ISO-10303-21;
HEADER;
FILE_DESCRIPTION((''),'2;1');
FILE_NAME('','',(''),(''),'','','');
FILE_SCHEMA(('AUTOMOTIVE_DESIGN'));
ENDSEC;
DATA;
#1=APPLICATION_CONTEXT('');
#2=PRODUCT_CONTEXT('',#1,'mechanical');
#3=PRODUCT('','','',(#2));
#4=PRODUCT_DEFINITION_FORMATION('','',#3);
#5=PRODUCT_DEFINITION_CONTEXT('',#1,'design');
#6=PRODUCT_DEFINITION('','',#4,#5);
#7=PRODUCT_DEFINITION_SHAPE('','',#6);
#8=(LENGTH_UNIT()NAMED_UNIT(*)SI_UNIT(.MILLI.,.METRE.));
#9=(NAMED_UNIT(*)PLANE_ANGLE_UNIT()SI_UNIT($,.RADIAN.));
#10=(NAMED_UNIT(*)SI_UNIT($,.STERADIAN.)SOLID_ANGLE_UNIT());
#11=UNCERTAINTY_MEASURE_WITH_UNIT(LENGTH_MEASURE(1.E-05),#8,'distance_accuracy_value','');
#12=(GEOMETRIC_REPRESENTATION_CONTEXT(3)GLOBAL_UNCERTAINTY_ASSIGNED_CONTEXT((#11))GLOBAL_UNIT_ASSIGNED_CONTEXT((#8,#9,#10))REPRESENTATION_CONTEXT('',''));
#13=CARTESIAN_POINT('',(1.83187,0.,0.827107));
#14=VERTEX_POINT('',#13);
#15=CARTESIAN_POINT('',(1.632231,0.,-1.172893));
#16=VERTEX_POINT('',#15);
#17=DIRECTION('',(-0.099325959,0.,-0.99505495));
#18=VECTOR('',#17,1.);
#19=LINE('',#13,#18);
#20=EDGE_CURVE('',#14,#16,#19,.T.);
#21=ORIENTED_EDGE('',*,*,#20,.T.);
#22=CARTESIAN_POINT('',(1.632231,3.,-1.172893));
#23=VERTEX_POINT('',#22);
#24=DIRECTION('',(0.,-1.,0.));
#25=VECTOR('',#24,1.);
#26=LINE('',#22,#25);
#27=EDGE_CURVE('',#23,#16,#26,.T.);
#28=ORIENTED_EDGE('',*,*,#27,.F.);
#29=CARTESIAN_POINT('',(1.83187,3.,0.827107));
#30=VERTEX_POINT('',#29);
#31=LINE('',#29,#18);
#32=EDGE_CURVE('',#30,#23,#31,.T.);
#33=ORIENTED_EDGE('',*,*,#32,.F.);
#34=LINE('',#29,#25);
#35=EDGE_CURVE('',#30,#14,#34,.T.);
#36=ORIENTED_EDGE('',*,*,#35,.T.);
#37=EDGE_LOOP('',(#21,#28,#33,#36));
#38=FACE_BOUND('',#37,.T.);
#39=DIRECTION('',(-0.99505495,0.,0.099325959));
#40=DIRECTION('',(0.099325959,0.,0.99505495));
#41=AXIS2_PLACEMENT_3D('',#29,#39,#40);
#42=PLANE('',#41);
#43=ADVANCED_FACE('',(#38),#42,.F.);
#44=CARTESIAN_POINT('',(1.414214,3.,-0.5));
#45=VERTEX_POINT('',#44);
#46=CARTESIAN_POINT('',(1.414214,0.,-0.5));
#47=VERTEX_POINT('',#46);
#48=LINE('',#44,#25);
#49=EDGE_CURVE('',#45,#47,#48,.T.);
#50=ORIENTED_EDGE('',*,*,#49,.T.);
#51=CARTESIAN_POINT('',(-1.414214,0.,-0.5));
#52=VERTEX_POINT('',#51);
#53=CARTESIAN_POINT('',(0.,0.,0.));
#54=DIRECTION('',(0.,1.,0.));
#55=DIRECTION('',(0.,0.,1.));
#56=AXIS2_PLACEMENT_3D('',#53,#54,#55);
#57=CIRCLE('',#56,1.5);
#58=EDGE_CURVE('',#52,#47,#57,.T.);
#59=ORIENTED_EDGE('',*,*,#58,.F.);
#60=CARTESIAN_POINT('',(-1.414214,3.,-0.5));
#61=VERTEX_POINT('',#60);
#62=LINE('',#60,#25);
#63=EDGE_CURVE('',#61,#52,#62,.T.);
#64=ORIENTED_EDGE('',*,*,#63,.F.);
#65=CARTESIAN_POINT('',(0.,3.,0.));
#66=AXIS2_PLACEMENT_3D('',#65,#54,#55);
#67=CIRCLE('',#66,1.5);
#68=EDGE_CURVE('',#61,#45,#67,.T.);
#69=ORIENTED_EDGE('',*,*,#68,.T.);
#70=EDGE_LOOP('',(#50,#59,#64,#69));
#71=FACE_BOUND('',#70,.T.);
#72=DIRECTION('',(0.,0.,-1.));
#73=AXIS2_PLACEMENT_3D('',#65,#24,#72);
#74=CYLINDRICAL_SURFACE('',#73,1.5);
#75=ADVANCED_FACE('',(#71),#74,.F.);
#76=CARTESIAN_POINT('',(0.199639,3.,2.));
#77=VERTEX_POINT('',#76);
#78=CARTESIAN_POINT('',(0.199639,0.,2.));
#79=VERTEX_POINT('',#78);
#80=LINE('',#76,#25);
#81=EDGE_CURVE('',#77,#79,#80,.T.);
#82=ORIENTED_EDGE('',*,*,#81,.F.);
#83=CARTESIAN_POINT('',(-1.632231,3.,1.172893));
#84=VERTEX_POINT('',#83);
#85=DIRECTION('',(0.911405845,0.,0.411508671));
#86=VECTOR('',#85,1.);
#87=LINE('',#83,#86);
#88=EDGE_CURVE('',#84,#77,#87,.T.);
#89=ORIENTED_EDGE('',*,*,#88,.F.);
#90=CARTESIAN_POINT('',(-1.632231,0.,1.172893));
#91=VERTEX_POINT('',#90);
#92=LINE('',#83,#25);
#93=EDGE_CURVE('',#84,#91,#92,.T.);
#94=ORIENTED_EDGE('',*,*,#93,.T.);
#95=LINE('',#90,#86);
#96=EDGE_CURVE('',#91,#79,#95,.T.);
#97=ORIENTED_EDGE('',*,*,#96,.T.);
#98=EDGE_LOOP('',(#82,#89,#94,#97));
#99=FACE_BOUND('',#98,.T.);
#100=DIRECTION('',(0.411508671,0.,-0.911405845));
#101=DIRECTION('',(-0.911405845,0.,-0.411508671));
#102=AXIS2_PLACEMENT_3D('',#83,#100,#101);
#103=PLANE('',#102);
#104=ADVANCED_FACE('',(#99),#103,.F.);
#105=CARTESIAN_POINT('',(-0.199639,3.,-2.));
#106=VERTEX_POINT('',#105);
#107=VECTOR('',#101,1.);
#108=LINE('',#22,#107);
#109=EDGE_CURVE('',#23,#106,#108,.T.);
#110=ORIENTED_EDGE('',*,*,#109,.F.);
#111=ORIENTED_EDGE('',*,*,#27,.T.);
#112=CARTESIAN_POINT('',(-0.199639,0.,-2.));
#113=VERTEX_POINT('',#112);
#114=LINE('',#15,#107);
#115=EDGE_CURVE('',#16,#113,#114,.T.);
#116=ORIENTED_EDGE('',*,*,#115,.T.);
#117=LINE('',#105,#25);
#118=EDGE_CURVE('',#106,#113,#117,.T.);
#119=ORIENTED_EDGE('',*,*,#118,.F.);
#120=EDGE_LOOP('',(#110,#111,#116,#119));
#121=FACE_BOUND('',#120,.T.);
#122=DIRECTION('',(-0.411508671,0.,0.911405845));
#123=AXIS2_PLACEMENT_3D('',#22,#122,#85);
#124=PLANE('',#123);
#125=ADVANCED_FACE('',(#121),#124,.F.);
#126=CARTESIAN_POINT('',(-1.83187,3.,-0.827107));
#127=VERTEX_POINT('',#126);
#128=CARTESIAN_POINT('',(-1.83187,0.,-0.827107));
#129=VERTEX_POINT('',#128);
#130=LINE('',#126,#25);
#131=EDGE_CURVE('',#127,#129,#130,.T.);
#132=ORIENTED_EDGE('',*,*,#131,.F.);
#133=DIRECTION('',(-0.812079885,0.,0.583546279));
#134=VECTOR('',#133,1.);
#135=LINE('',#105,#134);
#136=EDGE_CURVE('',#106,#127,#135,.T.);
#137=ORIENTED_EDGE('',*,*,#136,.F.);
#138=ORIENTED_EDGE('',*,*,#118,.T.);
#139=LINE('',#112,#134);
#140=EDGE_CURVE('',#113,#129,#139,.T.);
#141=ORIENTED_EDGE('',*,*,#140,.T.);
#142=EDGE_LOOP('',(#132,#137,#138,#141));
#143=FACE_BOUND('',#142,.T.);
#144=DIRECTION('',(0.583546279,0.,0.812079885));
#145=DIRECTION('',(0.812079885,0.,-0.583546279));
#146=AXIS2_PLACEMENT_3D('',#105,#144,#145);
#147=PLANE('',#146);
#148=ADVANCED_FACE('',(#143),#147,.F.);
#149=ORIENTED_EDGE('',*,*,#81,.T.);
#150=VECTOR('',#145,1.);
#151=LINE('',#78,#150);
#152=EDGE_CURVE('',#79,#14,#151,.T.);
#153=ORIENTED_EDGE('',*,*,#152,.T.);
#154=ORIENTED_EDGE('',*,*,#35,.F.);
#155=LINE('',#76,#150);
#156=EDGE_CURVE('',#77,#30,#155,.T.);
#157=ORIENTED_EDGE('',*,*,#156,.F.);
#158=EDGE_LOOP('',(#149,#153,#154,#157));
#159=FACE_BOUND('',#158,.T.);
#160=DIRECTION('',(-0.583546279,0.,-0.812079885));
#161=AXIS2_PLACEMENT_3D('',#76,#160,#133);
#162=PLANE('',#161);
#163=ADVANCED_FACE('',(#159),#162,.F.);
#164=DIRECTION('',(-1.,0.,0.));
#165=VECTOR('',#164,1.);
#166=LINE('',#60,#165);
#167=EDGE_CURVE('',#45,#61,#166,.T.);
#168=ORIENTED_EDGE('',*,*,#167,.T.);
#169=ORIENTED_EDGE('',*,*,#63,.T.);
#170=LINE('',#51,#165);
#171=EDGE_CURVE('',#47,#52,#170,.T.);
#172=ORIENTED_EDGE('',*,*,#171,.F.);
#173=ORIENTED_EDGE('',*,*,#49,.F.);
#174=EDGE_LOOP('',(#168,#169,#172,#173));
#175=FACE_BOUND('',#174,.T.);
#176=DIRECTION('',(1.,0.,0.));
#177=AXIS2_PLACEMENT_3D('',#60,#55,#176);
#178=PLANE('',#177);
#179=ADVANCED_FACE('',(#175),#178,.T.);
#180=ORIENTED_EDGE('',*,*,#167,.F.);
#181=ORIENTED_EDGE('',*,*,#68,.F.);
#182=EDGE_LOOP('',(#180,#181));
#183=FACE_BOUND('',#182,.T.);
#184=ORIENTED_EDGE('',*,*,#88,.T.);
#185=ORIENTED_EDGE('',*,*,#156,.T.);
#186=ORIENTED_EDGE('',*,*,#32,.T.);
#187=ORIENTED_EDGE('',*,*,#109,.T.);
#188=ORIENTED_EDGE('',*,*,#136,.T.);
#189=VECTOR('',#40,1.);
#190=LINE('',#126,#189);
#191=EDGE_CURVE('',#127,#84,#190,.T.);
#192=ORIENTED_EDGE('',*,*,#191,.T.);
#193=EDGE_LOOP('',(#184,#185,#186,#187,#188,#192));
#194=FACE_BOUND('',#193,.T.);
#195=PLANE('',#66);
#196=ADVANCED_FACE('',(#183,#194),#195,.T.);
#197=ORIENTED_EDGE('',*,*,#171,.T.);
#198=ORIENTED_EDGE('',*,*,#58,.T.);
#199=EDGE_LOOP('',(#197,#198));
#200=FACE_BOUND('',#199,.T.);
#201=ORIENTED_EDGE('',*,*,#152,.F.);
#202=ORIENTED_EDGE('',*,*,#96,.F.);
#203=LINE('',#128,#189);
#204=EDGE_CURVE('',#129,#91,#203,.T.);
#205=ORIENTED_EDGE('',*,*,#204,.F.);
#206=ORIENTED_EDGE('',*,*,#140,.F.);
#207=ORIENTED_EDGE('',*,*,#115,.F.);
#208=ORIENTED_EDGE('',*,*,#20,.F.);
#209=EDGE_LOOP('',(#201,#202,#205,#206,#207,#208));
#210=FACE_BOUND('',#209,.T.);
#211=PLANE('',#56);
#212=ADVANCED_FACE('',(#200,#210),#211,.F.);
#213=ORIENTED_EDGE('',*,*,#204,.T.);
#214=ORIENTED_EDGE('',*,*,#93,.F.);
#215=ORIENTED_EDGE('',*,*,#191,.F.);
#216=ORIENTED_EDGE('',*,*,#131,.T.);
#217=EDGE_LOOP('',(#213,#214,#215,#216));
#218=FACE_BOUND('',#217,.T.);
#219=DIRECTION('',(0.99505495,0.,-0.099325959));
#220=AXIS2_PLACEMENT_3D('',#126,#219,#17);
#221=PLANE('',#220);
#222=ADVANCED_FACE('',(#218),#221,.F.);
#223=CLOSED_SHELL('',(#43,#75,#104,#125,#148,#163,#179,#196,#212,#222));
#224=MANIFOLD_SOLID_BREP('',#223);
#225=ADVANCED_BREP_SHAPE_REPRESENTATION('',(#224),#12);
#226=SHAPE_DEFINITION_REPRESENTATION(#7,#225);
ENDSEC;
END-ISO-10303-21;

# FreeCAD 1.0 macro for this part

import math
import FreeCAD as App
import Part
import Sketcher

V = App.Vector

doc = App.newDocument("Part")
params = doc.addObject("Spreadsheet::Sheet", "Params")
for row, (alias, value) in enumerate([
    ("sketch1_radius", "1.5 mm"),
    ("pad1_length", "3 mm"),
], start=1):
    params.set(f"A{row}", alias)
    params.set(f"B{row}", "=" + value)
    params.setAlias(f"B{row}", alias)

body = doc.addObject("PartDesign::Body", "Body")

# Sketch on XZ plane
sketch1 = body.newObject("Sketcher::SketchObject", "Sketch")
sketch1.AttachmentSupport = (doc.getObject("XZ_Plane"), [""])
sketch1.MapMode = "FlatFace"
sketch1.addGeometry([
    Part.LineSegment(V(1.8, 0.8, 0), V(1.6, -1.2, 0)),  # 0
    Part.LineSegment(V(1.6, -1.2, 0), V(-0.2, -2, 0)),  # 1
    Part.LineSegment(V(-0.2, -2, 0), V(-1.8, -0.8, 0)),  # 2
    Part.LineSegment(V(-1.8, -0.8, 0), V(-1.6, 1.2, 0)),  # 3
    Part.LineSegment(V(-1.6, 1.2, 0), V(0.2, 2, 0)),  # 4
    Part.LineSegment(V(0.2, 2, 0), V(1.8, 0.8, 0)),  # 5
    Part.ArcOfCircle(Part.Circle(V(0, 0, 0), V(0, 0, 1), 1.5), math.radians(-19), math.radians(199)),  # 6
    Part.LineSegment(V(-1.4, -0.5, 0), V(1.4, -0.5, 0)),  # 7
], False)
sketch1.addConstraint([
    Sketcher.Constraint("Coincident", 0, 2, 1, 1),
    Sketcher.Constraint("Coincident", 1, 2, 2, 1),
    Sketcher.Constraint("Coincident", 2, 2, 3, 1),
    Sketcher.Constraint("Coincident", 3, 2, 4, 1),
    Sketcher.Constraint("Coincident", 4, 2, 5, 1),
    Sketcher.Constraint("Coincident", 5, 2, 0, 1),
    Sketcher.Constraint("Coincident", 6, 1, 7, 2),
    Sketcher.Constraint("Coincident", 7, 1, 6, 2),
    Sketcher.Constraint("Horizontal", 7),
    Sketcher.Constraint("Coincident", 6, 3, -1, 1),
    Sketcher.Constraint("Symmetric", 0, 2, 3, 2, -1, 1),
    Sketcher.Constraint("Symmetric", 1, 2, 4, 2, -1, 1),
    Sketcher.Constraint("Symmetric", 2, 2, 5, 2, -1, 1),
    Sketcher.Constraint("Equal", 0, 1),
    Sketcher.Constraint("Equal", 1, 2),
    Sketcher.Constraint("Radius", 6, 1.5),
    Sketcher.Constraint("DistanceY", 1, 2, -1, 1, 2.0),
    Sketcher.Constraint("DistanceY", 2, 2, 3, 2, 2.0),
    Sketcher.Constraint("DistanceY", 6, 1, -1, 1, 0.5),
    Sketcher.Constraint("DistanceX", 2, 2, 0, 2, 3.464102),
    Sketcher.Constraint("Distance", 0, 2.009939),
])
sketch1.setExpression("Constraints[15]", "Params.sketch1_radius")
pad1 = body.newObject("PartDesign::Pad", "Pad")
pad1.Profile = sketch1
pad1.setExpression("Length", "Params.pad1_length")
pad1.Reversed = True

doc.recompute()
